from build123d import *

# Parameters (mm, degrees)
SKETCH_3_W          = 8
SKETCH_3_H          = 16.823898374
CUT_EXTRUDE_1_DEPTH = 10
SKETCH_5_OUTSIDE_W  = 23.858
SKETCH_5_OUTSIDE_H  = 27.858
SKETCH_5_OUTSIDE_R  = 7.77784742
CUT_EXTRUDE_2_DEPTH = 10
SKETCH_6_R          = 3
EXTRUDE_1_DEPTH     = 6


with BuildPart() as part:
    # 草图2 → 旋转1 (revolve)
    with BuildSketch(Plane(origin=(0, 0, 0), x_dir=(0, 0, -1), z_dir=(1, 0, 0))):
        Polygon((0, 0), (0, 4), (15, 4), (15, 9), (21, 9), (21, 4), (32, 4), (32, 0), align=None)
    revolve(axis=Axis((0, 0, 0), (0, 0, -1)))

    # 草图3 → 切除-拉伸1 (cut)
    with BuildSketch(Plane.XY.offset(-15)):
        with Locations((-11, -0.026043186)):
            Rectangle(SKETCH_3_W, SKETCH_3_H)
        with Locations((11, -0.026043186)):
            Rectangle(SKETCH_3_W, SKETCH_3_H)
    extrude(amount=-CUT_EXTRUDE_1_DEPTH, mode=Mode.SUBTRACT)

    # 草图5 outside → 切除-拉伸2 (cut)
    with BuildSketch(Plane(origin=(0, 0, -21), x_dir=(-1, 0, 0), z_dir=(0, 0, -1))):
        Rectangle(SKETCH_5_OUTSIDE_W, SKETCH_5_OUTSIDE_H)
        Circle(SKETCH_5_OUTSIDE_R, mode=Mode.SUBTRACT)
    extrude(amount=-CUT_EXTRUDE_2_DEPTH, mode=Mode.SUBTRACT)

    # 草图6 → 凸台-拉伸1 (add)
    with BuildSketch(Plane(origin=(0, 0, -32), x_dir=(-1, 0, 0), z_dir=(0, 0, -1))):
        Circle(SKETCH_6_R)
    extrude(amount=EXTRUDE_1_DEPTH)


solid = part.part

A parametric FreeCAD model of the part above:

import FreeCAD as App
import Part
import Sketcher

V = App.Vector
Q = App.Units.Quantity


def add_polygon(sketch, points):
    """Adds a closed chain of lines whose ends are joined by coincident constraints."""
    first, n = sketch.GeometryCount, len(points)
    for a, b in zip(points, points[1:] + points[:1]):
        sketch.addGeometry(Part.LineSegment(App.Vector(*a, 0), App.Vector(*b, 0)), False)
    for i in range(n):
        sketch.addConstraint(Sketcher.Constraint("Coincident", first + i, 2, first + (i + 1) % n, 1))

doc = App.newDocument("Part")
body = doc.addObject("PartDesign::Body", "Body")

sketch1 = body.newObject("Sketcher::SketchObject", "Sketch")
sketch1.AttachmentSupport = (doc.getObject("YZ_Plane"), [""])
sketch1.MapMode = "FlatFace"
add_polygon(sketch1, [(4, 0), (0, 0), (0, -32), (4, -32), (4, -21), (9, -21), (9, -15), (4, -15)])
sketch1.addConstraint([
    Sketcher.Constraint("Horizontal", 0),
    Sketcher.Constraint("Vertical", 1),
    Sketcher.Constraint("Horizontal", 2),
    Sketcher.Constraint("Vertical", 3),
    Sketcher.Constraint("Horizontal", 4),
    Sketcher.Constraint("Vertical", 5),
    Sketcher.Constraint("Horizontal", 6),
    Sketcher.Constraint("Vertical", 7),
    Sketcher.Constraint("Coincident", 0, 2, -1, 1),
    Sketcher.Constraint("Vertical", 3, 2, 6, 2),
    Sketcher.Constraint("DistanceX", 0, 2, 0, 1, Q("4 mm")),
    Sketcher.Constraint("DistanceX", 4, 1, 4, 2, Q("5 mm")),
    Sketcher.Constraint("DistanceY", 1, 2, 1, 1, Q("32 mm")),
    Sketcher.Constraint("DistanceY", 3, 1, 3, 2, Q("11 mm")),
    Sketcher.Constraint("DistanceY", 5, 1, 5, 2, Q("6 mm")),
])
revolution = body.newObject("PartDesign::Revolution", "Revolution")
revolution.Profile = sketch1
revolution.ReferenceAxis = (sketch1, ["V_Axis"])
revolution.Angle = 360

sketch2 = body.newObject("Sketcher::SketchObject", "Sketch001")
sketch2.AttachmentSupport = (doc.getObject("XY_Plane"), [""])
sketch2.MapMode = "FlatFace"
sketch2.AttachmentOffset = App.Placement(V(0, 0, -15), App.Rotation())
add_polygon(sketch2, [(-15, 8), (-15, -8), (-7, -8), (-7, 8)])
add_polygon(sketch2, [(7, 8), (7, -8), (15, -8), (15, 8)])
sketch2.addConstraint([
    Sketcher.Constraint("Vertical", 0),
    Sketcher.Constraint("Horizontal", 1),
    Sketcher.Constraint("Vertical", 2),
    Sketcher.Constraint("Horizontal", 3),
    Sketcher.Constraint("Vertical", 4),
    Sketcher.Constraint("Horizontal", 5),
    Sketcher.Constraint("Vertical", 6),
    Sketcher.Constraint("Horizontal", 7),
    Sketcher.Constraint("Symmetric", 1, 2, 4, 2, -2),
    Sketcher.Constraint("Symmetric", 3, 2, 6, 2, -2),
    Sketcher.Constraint("DistanceX", 1, 1, 1, 2, Q("8 mm")),
    Sketcher.Constraint("DistanceX", 0, 2, -1, 1, Q("15 mm")),
    Sketcher.Constraint("DistanceY", 0, 2, 0, 1, Q("16.823898 mm")),
    Sketcher.Constraint("DistanceY", 0, 2, -1, 1, Q("8.437992 mm")),
])
pocket1 = body.newObject("PartDesign::Pocket", "Pocket")
pocket1.Profile = sketch2
pocket1.Length = 10

sketch3 = body.newObject("Sketcher::SketchObject", "Sketch002")
sketch3.AttachmentSupport = (doc.getObject("XY_Plane"), [""])
sketch3.MapMode = "FlatFace"
sketch3.AttachmentOffset = App.Placement(V(0, 0, -21), App.Rotation())
add_polygon(sketch3, [(12, 14), (12, -14), (-12, -14), (-12, 14)])
sketch3.addGeometry(Part.Circle(V(0, 0, 0), V(0, 0, 1), 8), False)
sketch3.addConstraint([
    Sketcher.Constraint("Vertical", 0),
    Sketcher.Constraint("Horizontal", 1),
    Sketcher.Constraint("Vertical", 2),
    Sketcher.Constraint("Horizontal", 3),
    Sketcher.Constraint("Coincident", 4, 3, -1, 1),
    Sketcher.Constraint("Symmetric", 0, 2, 2, 2, -1, 1),
    Sketcher.Constraint("DistanceX", 1, 2, 1, 1, Q("23.858 mm")),
    Sketcher.Constraint("DistanceY", 0, 2, 0, 1, Q("27.858 mm")),
    Sketcher.Constraint("Diameter", 4, Q("15.555695 mm")),
])
pocket2 = body.newObject("PartDesign::Pocket", "Pocket001")
pocket2.Profile = sketch3
pocket2.Length = 10
pocket2.Reversed = True

sketch4 = body.newObject("Sketcher::SketchObject", "Sketch003")
sketch4.AttachmentSupport = (doc.getObject("XY_Plane"), [""])
sketch4.MapMode = "FlatFace"
sketch4.AttachmentOffset = App.Placement(V(0, 0, -32), App.Rotation())
sketch4.addGeometry(Part.Circle(V(0, 0, 0), V(0, 0, 1), 3), False)
sketch4.addConstraint([
    Sketcher.Constraint("Coincident", 0, 3, -1, 1),
    Sketcher.Constraint("Diameter", 0, Q("6 mm")),
])
pad1 = body.newObject("PartDesign::Pad", "Pad")
pad1.Profile = sketch4
pad1.Length = 6
pad1.Reversed = True

doc.recompute()
